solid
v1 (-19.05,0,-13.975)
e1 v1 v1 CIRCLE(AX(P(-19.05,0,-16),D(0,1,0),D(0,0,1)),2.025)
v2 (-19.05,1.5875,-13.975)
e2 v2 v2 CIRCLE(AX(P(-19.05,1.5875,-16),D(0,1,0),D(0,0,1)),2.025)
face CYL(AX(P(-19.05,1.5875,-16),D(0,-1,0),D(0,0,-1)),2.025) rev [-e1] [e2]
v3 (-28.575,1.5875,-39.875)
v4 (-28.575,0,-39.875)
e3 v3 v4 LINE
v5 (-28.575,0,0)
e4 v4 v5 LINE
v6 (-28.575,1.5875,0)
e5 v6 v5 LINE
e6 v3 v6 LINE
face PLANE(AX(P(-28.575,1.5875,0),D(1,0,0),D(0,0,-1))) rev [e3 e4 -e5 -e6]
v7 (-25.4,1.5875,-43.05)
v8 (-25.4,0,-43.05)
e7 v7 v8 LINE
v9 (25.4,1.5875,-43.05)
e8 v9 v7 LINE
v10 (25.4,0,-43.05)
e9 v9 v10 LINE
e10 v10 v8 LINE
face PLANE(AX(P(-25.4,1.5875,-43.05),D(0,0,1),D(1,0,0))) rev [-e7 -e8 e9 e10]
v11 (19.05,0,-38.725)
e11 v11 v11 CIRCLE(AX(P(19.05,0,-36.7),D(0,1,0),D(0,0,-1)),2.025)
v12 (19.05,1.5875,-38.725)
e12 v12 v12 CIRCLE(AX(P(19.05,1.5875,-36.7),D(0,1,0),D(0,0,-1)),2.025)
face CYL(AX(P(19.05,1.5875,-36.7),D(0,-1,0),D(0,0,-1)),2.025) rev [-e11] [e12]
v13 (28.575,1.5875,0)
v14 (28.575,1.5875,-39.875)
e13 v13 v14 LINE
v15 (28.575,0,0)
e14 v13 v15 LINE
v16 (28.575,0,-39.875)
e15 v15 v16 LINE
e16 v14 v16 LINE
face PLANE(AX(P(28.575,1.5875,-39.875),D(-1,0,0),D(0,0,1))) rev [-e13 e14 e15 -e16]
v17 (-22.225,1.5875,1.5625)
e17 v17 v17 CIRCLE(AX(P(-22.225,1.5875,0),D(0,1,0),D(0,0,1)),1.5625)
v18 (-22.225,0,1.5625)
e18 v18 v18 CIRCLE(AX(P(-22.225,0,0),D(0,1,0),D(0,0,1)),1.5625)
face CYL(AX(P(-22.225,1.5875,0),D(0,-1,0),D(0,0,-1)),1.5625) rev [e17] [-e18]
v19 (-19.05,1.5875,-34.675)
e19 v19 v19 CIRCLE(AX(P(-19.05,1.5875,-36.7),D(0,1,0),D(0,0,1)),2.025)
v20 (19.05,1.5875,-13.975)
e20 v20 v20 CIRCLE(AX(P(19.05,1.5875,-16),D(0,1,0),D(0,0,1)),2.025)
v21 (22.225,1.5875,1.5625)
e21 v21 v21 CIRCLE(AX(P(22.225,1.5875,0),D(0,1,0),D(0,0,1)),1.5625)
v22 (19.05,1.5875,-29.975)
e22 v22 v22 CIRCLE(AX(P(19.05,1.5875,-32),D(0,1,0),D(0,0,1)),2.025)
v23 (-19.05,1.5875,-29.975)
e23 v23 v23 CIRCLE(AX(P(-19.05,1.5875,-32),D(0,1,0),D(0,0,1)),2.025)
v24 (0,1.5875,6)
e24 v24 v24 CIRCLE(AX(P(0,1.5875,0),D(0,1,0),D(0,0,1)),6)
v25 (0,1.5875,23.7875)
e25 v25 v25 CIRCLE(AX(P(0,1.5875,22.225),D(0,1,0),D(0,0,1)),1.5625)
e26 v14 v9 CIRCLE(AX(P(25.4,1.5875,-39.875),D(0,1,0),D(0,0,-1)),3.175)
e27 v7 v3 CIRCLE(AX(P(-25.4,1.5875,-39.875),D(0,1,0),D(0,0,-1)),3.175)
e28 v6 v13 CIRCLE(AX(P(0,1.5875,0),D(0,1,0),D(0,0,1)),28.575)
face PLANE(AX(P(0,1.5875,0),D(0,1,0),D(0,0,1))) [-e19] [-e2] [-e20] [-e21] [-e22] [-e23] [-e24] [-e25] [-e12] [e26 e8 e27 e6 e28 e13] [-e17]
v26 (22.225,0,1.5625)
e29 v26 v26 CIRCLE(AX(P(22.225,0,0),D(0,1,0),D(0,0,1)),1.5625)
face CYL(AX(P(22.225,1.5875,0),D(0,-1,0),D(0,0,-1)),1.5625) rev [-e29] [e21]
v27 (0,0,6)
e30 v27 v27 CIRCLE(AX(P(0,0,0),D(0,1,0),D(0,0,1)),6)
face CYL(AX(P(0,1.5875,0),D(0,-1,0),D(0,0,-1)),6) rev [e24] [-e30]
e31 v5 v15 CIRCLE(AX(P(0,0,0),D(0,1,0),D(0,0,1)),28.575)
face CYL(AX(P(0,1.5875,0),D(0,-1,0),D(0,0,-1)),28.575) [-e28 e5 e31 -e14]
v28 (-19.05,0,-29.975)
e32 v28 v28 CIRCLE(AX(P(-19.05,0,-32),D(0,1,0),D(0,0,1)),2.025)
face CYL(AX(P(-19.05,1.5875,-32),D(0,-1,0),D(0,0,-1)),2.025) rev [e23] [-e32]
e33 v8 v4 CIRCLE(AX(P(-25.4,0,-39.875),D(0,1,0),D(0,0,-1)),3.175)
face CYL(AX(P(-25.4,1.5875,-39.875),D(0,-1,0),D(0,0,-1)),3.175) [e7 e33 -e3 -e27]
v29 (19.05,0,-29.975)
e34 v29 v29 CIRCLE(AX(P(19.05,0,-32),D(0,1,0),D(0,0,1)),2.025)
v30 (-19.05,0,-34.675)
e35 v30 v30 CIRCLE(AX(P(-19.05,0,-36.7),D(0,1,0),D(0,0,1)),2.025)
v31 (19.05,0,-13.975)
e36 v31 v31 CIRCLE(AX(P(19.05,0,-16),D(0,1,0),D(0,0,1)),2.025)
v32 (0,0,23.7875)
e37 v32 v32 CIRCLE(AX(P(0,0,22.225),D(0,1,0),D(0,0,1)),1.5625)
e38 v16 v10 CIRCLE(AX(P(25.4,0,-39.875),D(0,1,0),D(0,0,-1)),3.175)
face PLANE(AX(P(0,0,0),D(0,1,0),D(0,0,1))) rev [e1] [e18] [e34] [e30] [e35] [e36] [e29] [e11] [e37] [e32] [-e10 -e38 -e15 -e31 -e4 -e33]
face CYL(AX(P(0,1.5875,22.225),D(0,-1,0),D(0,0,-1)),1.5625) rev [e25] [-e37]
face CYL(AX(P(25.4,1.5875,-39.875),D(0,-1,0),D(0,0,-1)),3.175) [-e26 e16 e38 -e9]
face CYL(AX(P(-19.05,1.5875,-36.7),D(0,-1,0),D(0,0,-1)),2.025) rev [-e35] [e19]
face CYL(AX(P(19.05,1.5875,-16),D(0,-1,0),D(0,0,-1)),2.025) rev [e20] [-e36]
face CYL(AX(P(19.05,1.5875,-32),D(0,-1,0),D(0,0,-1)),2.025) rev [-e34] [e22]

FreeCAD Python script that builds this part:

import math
import FreeCAD as App
import Part
import Sketcher
Q = App.Units.Quantity

doc = App.newDocument("Part")
body = doc.addObject("PartDesign::Body", "Body")

# Sketch on XZ plane
sketch1 = body.newObject("Sketcher::SketchObject", "Sketch")
sketch1.AttachmentSupport = (doc.getObject("XZ_Plane"), [""])
sketch1.MapMode = "FlatFace"
sketch1.addGeometry([
    Part.LineSegment(App.Vector(-28.575, -39.875, 0), App.Vector(-28.575, 0, 0)),  # 0
    Part.ArcOfCircle(Part.Circle(App.Vector(0, 0, 0), App.Vector(0, 0, 1), 28.575), math.radians(0), math.radians(180)),  # 1
    Part.LineSegment(App.Vector(28.575, 0, 0), App.Vector(28.575, -39.875, 0)),  # 2
    Part.ArcOfCircle(Part.Circle(App.Vector(25.4, -39.875, 0), App.Vector(0, 0, 1), 3.175), math.radians(-90), math.radians(0)),  # 3
    Part.LineSegment(App.Vector(25.4, -43.05, 0), App.Vector(-25.4, -43.05, 0)),  # 4
    Part.ArcOfCircle(Part.Circle(App.Vector(-25.4, -39.875, 0), App.Vector(0, 0, 1), 3.175), math.radians(-180), math.radians(-90)),  # 5
    Part.Circle(App.Vector(22.225, 0, 0), App.Vector(0, 0, 1), 1.5625),  # 6
    Part.Circle(App.Vector(0, 22.225, 0), App.Vector(0, 0, 1), 1.5625),  # 7
    Part.Circle(App.Vector(0, 0, 0), App.Vector(0, 0, 1), 6),  # 8
    Part.Circle(App.Vector(-22.225, 0, 0), App.Vector(0, 0, 1), 1.5625),  # 9
    Part.Circle(App.Vector(19.05, -16, 0), App.Vector(0, 0, 1), 2.025),  # 10
    Part.Circle(App.Vector(19.05, -32, 0), App.Vector(0, 0, 1), 2.025),  # 11
    Part.Circle(App.Vector(19.05, -36.7, 0), App.Vector(0, 0, 1), 2.025),  # 12
    Part.Circle(App.Vector(-19.05, -16, 0), App.Vector(0, 0, 1), 2.025),  # 13
    Part.Circle(App.Vector(-19.05, -32, 0), App.Vector(0, 0, 1), 2.025),  # 14
    Part.Circle(App.Vector(-19.05, -36.7, 0), App.Vector(0, 0, 1), 2.025),  # 15
], False)
sketch1.addConstraint([
    Sketcher.Constraint("Tangent", 0, 2, 1, 2),
    Sketcher.Constraint("Tangent", 1, 1, 2, 1),
    Sketcher.Constraint("Tangent", 2, 2, 3, 2),
    Sketcher.Constraint("Tangent", 3, 1, 4, 1),
    Sketcher.Constraint("Tangent", 4, 2, 5, 2),
    Sketcher.Constraint("Tangent", 5, 1, 0, 1),
    Sketcher.Constraint("Vertical", 0),
    Sketcher.Constraint("Vertical", 2),
    Sketcher.Constraint("Horizontal", 4),
    Sketcher.Constraint("Coincident", 1, 3, -1, 1),
    Sketcher.Constraint("Coincident", 8, 3, -1, 1),
    Sketcher.Constraint("Equal", 3, 5),
    Sketcher.Constraint("Equal", 6, 7),
    Sketcher.Constraint("Equal", 7, 9),
    Sketcher.Constraint("Equal", 10, 11),
    Sketcher.Constraint("Equal", 11, 12),
    Sketcher.Constraint("Equal", 12, 13),
    Sketcher.Constraint("Equal", 13, 14),
    Sketcher.Constraint("Equal", 14, 15),
    Sketcher.Constraint("Symmetric", 6, 3, 9, 3, -1, 1),
    Sketcher.Constraint("Symmetric", 10, 3, 13, 3, -2),
    Sketcher.Constraint("Symmetric", 11, 3, 14, 3, -2),
    Sketcher.Constraint("Symmetric", 12, 3, 15, 3, -2),
    Sketcher.Constraint("PointOnObject", 6, 3, -1),
    Sketcher.Constraint("PointOnObject", 7, 3, -2),
    Sketcher.Constraint("Vertical", 10, 3, 11, 3),
    Sketcher.Constraint("Vertical", 11, 3, 12, 3),
    Sketcher.Constraint("DistanceX", 4, 2, 4, 1, Q("2 in")),
    Sketcher.Constraint("Radius", 1, Q("1.125 in")),
    Sketcher.Constraint("DistanceX", 13, 3, 10, 3, Q("1.5 in")),
    Sketcher.Constraint("Diameter", 6, 3.125),
    Sketcher.Constraint("Diameter", 8, 12.0),
    Sketcher.Constraint("Diameter", 10, 4.05),
    Sketcher.Constraint("DistanceX", 9, 3, 6, 3, Q("1.75 in")),
    Sketcher.Constraint("DistanceY", 3, 1, 12, 3, Q("0.25 in")),
    Sketcher.Constraint("DistanceY", -1, 1, 7, 3, Q("0.875 in")),
    Sketcher.Constraint("DistanceY", 0, 1, 0, 2, 39.875),
    Sketcher.Constraint("DistanceY", 10, 3, -1, 1, 16.0),
    Sketcher.Constraint("DistanceY", 11, 3, -1, 1, 32.0),
])
pad1 = body.newObject("PartDesign::Pad", "Pad")
pad1.Profile = sketch1
pad1.Length = Q("0.0625 in")
pad1.Reversed = True

doc.recompute()
